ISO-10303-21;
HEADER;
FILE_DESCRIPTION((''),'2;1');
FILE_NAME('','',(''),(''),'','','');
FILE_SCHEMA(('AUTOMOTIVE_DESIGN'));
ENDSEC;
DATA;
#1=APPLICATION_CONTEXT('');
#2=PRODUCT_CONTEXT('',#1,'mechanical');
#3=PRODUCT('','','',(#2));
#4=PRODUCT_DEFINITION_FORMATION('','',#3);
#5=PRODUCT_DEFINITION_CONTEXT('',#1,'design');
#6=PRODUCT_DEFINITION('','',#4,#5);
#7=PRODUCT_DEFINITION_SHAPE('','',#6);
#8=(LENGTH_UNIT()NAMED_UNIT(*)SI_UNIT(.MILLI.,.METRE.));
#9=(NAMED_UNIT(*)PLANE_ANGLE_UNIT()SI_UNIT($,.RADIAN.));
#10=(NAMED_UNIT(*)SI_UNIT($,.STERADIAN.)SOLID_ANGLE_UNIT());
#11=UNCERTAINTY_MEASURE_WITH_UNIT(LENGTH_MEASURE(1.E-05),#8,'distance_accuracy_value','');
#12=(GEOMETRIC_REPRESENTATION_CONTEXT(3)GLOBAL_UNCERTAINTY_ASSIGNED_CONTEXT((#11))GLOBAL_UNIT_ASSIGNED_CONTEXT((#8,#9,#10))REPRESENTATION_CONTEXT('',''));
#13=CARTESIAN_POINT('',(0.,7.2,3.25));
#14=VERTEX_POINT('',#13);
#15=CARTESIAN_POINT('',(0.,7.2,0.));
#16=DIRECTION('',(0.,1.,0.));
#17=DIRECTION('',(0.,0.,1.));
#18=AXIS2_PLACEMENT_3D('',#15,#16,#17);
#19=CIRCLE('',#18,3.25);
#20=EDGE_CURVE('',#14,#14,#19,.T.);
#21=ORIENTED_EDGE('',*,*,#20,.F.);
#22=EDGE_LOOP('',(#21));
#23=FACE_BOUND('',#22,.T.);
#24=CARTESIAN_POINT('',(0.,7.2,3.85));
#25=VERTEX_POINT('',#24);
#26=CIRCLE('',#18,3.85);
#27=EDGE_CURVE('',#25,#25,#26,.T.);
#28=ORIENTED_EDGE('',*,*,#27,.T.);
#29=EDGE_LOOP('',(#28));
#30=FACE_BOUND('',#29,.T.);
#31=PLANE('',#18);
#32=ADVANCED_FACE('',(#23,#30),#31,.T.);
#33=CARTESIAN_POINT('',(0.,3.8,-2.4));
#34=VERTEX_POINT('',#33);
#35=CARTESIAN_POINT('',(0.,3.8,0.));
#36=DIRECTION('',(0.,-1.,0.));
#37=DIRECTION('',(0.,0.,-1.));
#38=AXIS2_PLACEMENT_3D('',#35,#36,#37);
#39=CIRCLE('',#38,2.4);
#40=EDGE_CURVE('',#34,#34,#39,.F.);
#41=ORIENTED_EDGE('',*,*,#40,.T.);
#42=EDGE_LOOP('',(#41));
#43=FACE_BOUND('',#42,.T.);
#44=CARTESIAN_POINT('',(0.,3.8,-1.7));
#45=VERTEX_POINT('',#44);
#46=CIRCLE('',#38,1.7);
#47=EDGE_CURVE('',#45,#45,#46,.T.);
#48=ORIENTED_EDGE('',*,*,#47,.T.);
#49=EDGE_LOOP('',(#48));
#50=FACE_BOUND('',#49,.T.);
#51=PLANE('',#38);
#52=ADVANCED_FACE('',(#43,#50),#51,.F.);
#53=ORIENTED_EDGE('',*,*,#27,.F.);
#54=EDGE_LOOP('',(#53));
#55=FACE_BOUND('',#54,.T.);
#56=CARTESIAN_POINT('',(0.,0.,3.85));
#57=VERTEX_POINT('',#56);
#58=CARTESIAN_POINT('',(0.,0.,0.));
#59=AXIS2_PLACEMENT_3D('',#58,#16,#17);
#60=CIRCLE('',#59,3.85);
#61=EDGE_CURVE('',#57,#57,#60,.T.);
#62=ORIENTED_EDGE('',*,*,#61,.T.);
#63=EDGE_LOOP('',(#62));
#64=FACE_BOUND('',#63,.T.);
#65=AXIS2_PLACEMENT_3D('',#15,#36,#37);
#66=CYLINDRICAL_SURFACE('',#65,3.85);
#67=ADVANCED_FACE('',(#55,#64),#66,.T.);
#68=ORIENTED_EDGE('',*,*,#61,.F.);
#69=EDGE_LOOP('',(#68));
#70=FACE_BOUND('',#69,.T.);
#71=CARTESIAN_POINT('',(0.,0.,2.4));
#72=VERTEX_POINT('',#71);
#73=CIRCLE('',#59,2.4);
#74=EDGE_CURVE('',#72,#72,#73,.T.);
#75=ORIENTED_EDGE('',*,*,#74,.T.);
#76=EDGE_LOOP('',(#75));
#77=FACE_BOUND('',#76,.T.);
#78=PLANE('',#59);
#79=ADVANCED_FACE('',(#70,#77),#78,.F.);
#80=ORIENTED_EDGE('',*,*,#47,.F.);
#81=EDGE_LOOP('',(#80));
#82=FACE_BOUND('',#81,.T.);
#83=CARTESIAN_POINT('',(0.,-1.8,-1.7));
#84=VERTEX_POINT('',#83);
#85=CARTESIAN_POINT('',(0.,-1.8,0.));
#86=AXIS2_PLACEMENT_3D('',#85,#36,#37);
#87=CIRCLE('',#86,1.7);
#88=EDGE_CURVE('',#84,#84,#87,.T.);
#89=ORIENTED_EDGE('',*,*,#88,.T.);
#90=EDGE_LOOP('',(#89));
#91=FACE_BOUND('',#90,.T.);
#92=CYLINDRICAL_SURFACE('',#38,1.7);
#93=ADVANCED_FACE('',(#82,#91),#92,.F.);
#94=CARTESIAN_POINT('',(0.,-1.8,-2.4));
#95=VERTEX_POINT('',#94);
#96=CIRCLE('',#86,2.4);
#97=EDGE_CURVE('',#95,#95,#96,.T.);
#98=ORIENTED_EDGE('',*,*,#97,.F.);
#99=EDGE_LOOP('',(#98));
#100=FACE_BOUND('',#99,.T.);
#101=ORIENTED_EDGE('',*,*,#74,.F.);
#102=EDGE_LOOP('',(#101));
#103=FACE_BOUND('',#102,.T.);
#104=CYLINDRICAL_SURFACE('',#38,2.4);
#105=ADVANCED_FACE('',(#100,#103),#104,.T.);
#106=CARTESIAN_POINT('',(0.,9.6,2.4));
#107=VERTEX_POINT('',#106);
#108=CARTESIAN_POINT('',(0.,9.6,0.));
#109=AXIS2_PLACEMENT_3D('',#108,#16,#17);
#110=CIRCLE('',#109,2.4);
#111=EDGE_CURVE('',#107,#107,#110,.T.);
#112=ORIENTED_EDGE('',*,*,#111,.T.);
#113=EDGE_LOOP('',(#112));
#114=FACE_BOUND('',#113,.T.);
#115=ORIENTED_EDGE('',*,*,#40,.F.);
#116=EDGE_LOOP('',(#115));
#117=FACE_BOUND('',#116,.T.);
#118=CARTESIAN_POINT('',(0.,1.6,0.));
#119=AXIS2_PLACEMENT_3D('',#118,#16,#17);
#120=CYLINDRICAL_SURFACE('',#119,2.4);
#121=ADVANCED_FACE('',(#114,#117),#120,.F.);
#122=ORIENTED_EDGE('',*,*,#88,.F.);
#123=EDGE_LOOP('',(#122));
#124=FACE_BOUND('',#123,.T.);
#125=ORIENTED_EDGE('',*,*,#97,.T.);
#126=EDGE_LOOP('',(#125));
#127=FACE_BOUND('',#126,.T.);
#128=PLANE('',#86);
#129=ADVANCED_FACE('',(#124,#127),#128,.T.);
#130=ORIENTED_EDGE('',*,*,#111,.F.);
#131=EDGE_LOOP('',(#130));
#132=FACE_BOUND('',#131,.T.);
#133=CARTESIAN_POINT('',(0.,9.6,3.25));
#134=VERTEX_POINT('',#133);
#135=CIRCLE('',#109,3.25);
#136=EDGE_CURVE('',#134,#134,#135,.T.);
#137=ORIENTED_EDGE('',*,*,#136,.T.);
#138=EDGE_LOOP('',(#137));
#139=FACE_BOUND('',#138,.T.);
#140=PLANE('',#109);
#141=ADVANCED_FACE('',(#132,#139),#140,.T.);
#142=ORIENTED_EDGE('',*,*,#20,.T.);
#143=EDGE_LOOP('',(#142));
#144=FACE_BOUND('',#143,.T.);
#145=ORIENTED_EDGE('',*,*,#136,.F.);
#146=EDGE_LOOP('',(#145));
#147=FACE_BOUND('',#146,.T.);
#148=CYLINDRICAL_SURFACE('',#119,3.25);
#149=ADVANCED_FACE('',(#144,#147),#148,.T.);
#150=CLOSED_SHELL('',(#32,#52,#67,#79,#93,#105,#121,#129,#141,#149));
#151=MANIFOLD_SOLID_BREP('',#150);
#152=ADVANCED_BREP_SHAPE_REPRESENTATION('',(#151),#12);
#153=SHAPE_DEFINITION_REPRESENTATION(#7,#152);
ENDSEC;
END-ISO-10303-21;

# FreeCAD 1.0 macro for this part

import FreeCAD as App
import Part
import Sketcher
from FreeCAD import Vector

doc = App.newDocument("Part")
body = doc.addObject("PartDesign::Body", "Body")

# Sketch on XZ plane
sketch1 = body.newObject("Sketcher::SketchObject", "Sketch")
sketch1.AttachmentSupport = (doc.getObject("XZ_Plane"), [""])
sketch1.MapMode = "FlatFace"
sketch1.addGeometry(Part.Circle(Vector(0, 0, 0), Vector(0, 0, 1), 3.85), False)
sketch1.addConstraint(Sketcher.Constraint("Coincident", 0, 3, -1, 1))
sketch1.addConstraint(Sketcher.Constraint("Diameter", 0, 7.7))
pad1 = body.newObject("PartDesign::Pad", "Pad")
pad1.Profile = sketch1
pad1.Length = 7.2
pad1.Reversed = True

# Sketch on XZ plane
sketch2 = body.newObject("Sketcher::SketchObject", "Sketch001")
sketch2.AttachmentSupport = (doc.getObject("XZ_Plane"), [""])
sketch2.MapMode = "FlatFace"
sketch2.AttachmentOffset = App.Placement(Vector(0, 0, -9.6), App.Rotation())
sketch2.addGeometry(Part.Circle(Vector(0, 0, 0), Vector(0, 0, 1), 3.25), False)
sketch2.addGeometry(Part.Circle(Vector(0, 0, 0), Vector(0, 0, 1), 2.4), False)
sketch2.addConstraint(Sketcher.Constraint("Coincident", 0, 3, -1, 1))
sketch2.addConstraint(Sketcher.Constraint("Coincident", 1, 3, -1, 1))
sketch2.addConstraint(Sketcher.Constraint("Diameter", 0, 6.5))
sketch2.addConstraint(Sketcher.Constraint("Diameter", 1, 4.8))
pad2 = body.newObject("PartDesign::Pad", "Pad001")
pad2.Profile = sketch2
pad2.Length = 8

# Sketch on XZ plane
sketch3 = body.newObject("Sketcher::SketchObject", "Sketch002")
sketch3.AttachmentSupport = (doc.getObject("XZ_Plane"), [""])
sketch3.MapMode = "FlatFace"
sketch3.AttachmentOffset = App.Placement(Vector(0, 0, -7.2), App.Rotation())
sketch3.addGeometry(Part.Circle(Vector(0, 0, 0), Vector(0, 0, 1), 2.4), False)
sketch3.addConstraint(Sketcher.Constraint("Coincident", 0, 3, -1, 1))
sketch3.addConstraint(Sketcher.Constraint("Diameter", 0, 4.8))
pocket1 = body.newObject("PartDesign::Pocket", "Pocket")
pocket1.Profile = sketch3
pocket1.Length = 5.6
pocket1.Reversed = True

# Sketch on XZ plane
sketch4 = body.newObject("Sketcher::SketchObject", "Sketch003")
sketch4.AttachmentSupport = (doc.getObject("XZ_Plane"), [""])
sketch4.MapMode = "FlatFace"
sketch4.AttachmentOffset = App.Placement(Vector(0, 0, -3.8), App.Rotation())
sketch4.addGeometry(Part.Circle(Vector(0, 0, 0), Vector(0, 0, 1), 2.4), False)
sketch4.addGeometry(Part.Circle(Vector(0, 0, 0), Vector(0, 0, 1), 1.7), False)
sketch4.addConstraint(Sketcher.Constraint("Coincident", 0, 3, -1, 1))
sketch4.addConstraint(Sketcher.Constraint("Coincident", 1, 3, -1, 1))
sketch4.addConstraint(Sketcher.Constraint("Diameter", 0, 4.8))
sketch4.addConstraint(Sketcher.Constraint("Diameter", 1, 3.4))
pad3 = body.newObject("PartDesign::Pad", "Pad002")
pad3.Profile = sketch4
pad3.Length = 5.6

# Sketch on XZ plane
sketch5 = body.newObject("Sketcher::SketchObject", "Sketch004")
sketch5.AttachmentSupport = (doc.getObject("XZ_Plane"), [""])
sketch5.MapMode = "FlatFace"
sketch5.addGeometry(Part.Circle(Vector(0, 0, 0), Vector(0, 0, 1), 1.7), False)
sketch5.addConstraint(Sketcher.Constraint("Coincident", 0, 3, -1, 1))
sketch5.addConstraint(Sketcher.Constraint("Diameter", 0, 3.4))
pocket2 = body.newObject("PartDesign::Pocket", "Pocket001")
pocket2.Profile = sketch5
pocket2.Type = "ThroughAll"

doc.recompute()
